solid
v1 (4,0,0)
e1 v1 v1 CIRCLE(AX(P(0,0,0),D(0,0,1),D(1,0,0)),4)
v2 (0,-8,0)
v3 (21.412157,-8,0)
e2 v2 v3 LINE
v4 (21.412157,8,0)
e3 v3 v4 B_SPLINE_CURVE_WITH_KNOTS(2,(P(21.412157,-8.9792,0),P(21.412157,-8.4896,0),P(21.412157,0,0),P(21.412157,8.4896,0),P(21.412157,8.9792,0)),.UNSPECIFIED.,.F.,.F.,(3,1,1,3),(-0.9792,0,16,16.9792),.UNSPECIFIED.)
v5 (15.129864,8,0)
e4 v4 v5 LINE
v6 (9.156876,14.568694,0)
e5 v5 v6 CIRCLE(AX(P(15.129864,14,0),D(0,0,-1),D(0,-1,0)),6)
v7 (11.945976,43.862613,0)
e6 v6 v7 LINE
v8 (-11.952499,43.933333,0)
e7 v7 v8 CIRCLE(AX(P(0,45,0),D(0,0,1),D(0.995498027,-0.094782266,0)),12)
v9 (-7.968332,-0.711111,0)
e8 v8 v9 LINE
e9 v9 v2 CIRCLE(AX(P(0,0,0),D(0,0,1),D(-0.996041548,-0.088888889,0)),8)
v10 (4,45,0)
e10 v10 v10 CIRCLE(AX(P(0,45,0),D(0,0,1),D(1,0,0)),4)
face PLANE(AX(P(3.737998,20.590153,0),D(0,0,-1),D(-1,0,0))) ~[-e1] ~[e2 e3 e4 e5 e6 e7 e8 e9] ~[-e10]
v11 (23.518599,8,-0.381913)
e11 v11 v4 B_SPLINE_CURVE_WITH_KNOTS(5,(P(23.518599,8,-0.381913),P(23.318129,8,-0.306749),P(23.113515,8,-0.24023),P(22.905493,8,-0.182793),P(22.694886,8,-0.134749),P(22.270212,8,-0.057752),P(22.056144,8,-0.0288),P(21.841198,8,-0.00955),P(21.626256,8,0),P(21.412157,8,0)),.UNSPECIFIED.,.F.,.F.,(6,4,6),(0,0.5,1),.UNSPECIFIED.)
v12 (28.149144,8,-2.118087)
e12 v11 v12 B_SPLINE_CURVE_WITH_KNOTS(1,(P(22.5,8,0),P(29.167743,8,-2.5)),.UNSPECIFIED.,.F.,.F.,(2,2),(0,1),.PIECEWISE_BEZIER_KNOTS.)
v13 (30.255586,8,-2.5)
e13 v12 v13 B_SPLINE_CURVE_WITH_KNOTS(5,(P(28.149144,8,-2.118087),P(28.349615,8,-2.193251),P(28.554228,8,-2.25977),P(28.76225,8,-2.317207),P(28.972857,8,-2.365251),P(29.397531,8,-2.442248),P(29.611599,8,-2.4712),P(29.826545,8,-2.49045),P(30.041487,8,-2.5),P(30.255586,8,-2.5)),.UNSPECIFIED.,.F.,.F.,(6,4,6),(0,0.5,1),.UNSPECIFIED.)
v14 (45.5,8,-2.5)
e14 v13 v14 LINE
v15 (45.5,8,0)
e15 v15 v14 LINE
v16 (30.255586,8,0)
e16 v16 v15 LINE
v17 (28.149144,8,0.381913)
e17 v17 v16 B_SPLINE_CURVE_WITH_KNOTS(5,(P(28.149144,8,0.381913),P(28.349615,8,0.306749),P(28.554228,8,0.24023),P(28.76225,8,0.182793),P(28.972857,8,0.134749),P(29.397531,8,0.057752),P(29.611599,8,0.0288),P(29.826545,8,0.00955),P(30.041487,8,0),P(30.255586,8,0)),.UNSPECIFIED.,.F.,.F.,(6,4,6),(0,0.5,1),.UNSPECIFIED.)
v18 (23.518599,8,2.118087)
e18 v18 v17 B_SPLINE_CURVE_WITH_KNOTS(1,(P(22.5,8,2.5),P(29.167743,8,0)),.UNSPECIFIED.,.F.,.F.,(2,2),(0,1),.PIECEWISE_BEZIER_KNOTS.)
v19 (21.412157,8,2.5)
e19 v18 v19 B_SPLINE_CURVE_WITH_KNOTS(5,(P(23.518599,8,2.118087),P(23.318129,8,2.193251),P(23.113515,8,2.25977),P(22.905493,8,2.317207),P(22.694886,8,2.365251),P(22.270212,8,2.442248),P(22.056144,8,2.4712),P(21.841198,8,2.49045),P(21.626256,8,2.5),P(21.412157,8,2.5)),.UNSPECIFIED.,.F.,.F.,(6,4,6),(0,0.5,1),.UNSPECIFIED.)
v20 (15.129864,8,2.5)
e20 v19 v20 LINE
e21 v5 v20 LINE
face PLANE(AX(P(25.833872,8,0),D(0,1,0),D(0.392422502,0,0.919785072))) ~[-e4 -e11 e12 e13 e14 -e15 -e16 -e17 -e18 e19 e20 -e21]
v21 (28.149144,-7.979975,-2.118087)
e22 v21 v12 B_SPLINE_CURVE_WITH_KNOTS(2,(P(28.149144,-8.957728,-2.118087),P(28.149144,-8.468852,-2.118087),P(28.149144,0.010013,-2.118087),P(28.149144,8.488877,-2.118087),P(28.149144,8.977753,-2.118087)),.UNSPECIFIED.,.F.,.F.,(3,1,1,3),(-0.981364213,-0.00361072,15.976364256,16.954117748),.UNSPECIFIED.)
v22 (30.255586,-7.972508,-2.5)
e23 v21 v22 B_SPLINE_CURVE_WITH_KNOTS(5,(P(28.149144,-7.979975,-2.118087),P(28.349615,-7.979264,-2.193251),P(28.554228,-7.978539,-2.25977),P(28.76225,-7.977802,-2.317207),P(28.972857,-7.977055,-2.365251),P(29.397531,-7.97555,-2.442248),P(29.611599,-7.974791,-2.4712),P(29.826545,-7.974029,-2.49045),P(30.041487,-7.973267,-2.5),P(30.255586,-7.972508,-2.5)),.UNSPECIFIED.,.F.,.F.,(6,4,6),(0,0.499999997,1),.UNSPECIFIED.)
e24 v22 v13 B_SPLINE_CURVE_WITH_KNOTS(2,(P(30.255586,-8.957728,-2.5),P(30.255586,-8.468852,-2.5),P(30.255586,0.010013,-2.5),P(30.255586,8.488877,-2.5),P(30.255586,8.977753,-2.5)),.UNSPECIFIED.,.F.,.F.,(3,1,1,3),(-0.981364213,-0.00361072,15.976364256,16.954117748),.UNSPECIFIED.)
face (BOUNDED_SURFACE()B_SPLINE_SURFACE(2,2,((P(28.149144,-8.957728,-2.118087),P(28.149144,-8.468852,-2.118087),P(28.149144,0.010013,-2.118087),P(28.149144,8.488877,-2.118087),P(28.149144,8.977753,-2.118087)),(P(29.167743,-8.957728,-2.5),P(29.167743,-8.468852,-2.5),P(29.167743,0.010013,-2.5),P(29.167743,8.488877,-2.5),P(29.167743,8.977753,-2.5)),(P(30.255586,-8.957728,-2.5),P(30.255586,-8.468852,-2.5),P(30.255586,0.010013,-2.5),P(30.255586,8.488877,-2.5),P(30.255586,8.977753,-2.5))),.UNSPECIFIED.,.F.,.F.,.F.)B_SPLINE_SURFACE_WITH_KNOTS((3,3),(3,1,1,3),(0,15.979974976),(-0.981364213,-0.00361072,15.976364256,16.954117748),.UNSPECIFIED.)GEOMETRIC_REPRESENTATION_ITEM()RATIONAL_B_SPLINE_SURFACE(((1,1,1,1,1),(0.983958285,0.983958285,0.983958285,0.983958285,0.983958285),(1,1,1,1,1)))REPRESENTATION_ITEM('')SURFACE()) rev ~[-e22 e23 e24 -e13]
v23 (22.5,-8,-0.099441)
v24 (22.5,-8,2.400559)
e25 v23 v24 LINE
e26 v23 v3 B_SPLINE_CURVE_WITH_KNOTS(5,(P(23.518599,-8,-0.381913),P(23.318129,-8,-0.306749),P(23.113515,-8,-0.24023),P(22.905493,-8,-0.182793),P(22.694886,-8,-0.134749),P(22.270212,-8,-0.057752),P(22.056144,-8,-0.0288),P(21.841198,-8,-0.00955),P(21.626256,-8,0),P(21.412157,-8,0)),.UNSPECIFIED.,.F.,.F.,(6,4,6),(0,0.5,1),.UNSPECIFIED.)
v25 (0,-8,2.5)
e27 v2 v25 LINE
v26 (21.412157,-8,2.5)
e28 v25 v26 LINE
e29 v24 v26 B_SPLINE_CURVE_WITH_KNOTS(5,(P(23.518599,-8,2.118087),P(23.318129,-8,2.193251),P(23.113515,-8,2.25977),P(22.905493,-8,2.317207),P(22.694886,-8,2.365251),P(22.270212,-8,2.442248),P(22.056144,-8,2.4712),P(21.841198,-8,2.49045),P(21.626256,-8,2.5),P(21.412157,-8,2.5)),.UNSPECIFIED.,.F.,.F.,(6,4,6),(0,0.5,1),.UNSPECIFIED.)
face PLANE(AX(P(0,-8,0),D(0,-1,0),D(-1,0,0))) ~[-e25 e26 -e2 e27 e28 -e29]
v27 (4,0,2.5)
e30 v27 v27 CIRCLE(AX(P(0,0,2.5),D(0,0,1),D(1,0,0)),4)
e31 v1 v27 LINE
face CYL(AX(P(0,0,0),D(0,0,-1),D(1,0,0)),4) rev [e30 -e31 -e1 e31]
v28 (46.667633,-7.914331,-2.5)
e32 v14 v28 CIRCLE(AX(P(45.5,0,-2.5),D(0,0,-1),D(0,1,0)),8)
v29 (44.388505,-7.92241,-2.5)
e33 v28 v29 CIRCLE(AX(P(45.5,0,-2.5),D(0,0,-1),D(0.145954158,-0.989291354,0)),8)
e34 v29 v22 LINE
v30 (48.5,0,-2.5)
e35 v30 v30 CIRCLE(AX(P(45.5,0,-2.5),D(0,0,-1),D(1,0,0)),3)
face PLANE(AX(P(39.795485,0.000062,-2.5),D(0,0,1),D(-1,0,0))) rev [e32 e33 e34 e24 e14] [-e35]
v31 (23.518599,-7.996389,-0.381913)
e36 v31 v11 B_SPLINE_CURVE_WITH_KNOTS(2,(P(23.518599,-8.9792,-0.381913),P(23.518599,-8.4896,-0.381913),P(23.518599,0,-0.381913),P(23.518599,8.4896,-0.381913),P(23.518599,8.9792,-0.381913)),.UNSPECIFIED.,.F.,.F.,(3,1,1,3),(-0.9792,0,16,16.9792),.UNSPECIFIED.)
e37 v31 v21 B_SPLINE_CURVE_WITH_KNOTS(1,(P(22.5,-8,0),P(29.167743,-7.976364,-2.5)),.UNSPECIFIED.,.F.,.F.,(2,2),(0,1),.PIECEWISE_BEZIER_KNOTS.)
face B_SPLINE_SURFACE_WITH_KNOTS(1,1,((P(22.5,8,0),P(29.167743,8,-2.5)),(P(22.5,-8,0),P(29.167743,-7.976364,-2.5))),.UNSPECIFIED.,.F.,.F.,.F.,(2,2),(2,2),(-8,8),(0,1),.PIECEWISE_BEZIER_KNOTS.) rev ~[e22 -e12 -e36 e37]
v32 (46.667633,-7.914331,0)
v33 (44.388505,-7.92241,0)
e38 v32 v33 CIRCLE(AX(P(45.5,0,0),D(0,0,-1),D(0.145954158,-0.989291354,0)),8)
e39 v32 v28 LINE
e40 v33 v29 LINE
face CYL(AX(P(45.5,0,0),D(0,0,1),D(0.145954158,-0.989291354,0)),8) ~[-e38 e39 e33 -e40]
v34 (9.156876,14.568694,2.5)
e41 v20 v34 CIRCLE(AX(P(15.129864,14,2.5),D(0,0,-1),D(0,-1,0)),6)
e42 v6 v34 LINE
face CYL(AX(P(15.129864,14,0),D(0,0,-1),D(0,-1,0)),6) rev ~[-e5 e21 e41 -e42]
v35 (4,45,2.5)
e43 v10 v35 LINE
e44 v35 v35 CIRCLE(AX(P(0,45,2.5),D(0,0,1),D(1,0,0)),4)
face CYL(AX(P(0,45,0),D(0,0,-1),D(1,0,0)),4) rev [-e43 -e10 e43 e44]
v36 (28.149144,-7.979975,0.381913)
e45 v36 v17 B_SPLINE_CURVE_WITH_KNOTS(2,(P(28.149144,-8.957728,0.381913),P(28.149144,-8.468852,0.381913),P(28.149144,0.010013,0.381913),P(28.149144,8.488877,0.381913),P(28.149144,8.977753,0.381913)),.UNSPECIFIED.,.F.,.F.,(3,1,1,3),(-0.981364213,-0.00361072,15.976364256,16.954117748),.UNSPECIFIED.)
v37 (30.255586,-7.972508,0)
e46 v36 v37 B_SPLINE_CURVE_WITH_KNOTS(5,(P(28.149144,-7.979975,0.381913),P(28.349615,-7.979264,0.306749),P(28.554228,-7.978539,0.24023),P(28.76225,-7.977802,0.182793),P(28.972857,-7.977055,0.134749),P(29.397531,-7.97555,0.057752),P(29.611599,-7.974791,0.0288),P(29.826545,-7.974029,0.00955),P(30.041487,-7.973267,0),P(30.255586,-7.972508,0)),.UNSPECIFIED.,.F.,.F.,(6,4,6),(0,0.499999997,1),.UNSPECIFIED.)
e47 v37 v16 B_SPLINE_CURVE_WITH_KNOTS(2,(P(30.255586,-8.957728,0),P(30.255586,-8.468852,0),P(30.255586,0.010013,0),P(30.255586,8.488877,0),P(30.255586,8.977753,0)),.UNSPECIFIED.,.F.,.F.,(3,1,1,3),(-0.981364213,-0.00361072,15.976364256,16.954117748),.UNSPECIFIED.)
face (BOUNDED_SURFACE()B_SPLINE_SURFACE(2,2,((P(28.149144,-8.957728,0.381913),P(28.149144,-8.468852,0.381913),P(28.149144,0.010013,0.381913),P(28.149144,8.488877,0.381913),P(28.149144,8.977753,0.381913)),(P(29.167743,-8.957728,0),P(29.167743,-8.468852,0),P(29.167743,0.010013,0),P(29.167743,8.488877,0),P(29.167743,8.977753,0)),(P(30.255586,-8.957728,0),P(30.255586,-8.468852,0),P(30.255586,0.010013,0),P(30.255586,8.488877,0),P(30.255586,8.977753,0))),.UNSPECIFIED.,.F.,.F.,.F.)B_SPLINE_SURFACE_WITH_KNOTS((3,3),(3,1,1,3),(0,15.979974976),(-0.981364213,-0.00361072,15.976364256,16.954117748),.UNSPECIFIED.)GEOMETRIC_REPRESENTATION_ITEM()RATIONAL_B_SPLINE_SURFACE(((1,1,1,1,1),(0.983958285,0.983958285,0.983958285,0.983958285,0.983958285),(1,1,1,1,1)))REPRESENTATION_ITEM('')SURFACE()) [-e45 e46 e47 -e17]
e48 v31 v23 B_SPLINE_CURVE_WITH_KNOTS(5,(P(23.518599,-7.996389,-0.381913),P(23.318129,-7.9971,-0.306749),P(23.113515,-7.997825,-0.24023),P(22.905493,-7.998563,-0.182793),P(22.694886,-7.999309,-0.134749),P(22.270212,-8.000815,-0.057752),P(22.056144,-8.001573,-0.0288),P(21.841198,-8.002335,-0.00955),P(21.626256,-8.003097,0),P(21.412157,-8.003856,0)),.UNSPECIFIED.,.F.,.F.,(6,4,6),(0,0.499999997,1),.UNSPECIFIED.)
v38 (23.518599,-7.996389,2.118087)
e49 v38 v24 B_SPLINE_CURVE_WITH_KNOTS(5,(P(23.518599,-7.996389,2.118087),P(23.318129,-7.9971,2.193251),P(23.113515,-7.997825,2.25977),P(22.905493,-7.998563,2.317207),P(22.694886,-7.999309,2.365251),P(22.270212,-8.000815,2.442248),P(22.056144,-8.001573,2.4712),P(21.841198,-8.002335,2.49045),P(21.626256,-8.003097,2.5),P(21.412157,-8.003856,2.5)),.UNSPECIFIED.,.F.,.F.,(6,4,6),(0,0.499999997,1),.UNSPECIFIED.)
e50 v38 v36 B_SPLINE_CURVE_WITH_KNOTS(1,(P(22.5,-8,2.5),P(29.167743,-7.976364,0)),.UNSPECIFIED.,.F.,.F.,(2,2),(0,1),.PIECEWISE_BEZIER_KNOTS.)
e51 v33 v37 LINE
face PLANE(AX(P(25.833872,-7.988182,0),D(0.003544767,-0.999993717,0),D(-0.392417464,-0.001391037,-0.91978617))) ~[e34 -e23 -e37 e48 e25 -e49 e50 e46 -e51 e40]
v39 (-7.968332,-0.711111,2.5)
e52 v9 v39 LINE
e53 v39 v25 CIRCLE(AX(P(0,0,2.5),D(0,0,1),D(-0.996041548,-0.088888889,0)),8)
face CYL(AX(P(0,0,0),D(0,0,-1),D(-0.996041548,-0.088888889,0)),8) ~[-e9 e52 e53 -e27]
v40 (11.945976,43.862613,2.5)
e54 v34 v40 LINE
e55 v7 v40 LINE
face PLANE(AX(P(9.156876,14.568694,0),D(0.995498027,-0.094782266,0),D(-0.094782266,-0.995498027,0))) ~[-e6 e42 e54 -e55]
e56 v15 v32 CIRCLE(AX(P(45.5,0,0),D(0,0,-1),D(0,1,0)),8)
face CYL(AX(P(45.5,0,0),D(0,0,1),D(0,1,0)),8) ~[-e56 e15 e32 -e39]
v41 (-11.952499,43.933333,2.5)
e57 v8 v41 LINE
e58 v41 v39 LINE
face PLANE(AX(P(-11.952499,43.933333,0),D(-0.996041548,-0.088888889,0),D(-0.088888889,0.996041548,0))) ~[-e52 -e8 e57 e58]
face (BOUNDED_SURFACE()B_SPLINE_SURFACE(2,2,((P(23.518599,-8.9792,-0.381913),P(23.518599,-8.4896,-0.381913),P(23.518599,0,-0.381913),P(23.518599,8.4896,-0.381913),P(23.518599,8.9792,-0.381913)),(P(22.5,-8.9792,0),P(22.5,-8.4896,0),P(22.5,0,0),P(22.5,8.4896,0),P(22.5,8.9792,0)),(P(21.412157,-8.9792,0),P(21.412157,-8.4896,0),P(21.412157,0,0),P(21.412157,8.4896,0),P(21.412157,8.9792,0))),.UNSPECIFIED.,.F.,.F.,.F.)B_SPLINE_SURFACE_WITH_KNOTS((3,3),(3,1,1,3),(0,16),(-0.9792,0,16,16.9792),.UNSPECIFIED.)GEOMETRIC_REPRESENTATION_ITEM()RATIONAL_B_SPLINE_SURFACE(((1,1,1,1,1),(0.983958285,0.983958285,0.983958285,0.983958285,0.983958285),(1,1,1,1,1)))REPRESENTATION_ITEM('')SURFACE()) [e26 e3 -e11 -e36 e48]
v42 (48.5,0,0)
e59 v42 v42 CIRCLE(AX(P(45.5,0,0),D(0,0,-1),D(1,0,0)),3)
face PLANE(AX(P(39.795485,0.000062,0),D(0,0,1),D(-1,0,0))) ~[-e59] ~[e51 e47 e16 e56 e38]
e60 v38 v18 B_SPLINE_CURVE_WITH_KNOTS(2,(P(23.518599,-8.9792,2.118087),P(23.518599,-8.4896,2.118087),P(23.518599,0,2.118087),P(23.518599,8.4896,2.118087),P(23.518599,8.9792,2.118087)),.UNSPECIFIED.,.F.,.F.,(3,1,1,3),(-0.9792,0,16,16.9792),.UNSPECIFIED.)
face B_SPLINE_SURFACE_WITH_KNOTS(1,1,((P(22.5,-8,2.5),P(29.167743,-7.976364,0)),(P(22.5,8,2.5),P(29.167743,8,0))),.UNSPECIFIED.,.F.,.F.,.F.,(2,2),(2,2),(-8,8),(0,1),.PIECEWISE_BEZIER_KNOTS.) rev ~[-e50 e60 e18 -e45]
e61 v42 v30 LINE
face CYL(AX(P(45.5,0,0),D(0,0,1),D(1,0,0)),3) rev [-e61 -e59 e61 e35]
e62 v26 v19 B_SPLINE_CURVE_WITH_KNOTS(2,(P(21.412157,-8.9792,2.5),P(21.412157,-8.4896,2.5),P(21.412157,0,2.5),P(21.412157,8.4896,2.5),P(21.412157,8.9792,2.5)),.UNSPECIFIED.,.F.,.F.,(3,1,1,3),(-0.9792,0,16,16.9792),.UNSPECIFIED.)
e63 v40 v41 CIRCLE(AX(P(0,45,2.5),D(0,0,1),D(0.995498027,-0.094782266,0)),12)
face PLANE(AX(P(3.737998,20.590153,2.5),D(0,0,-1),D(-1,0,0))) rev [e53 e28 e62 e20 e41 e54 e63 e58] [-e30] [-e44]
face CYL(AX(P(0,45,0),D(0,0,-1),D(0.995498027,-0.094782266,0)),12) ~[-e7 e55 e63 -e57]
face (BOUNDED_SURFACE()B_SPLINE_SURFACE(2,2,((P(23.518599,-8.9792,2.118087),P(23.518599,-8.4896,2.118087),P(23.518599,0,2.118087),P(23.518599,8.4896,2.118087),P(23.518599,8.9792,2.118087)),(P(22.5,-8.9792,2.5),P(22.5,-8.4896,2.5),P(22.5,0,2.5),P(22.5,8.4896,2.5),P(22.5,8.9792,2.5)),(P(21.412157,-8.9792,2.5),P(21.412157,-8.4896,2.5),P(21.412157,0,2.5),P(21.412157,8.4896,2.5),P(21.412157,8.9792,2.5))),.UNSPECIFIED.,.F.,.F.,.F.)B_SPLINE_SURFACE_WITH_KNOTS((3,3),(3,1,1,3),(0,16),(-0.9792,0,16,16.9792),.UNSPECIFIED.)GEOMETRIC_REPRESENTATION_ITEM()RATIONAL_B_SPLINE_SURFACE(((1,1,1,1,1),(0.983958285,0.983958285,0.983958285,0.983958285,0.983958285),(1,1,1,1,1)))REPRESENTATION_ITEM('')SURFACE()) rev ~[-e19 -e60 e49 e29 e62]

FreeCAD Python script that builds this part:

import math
import FreeCAD as App
import Part
import Sketcher
from FreeCAD import Vector


def edges_at(feature, points):
    """Names of the edges that pass closest to the given points."""
    edges = feature.Shape.Edges
    near = lambda p: min(range(len(edges)), key=lambda i: edges[i].distToShape(Part.Vertex(*p))[0])
    return sorted({f"Edge{near(p) + 1}" for p in points})

doc = App.newDocument("Part")
body = doc.addObject("PartDesign::Body", "Body")

sketch1 = body.newObject("Sketcher::SketchObject", "Sketch")
sketch1.AttachmentSupport = (doc.getObject("XY_Plane"), [""])
sketch1.MapMode = "FlatFace"
sketch1.addGeometry(Part.LineSegment(Vector(9.2, 14.6, 0), Vector(11.9, 43.9, 0)), False)
sketch1.addGeometry(Part.ArcOfCircle(Part.Circle(Vector(0, 45, 0), Vector(0, 0, 1), 12), math.radians(-5), math.radians(185)), False)
sketch1.addGeometry(Part.LineSegment(Vector(-12, 43.9, 0), Vector(-8, -0.7, 0)), False)
sketch1.addGeometry(Part.ArcOfCircle(Part.Circle(Vector(0, 0, 0), Vector(0, 0, 1), 8), math.radians(-175), math.radians(-90)), False)
sketch1.addGeometry(Part.LineSegment(Vector(0, -8, 0), Vector(22.5, -8, 0)), False)
sketch1.addGeometry(Part.LineSegment(Vector(22.5, -8, 0), Vector(22.5, 8, 0)), False)
sketch1.addGeometry(Part.LineSegment(Vector(22.5, 8, 0), Vector(15.1, 8, 0)), False)
sketch1.addGeometry(Part.ArcOfCircle(Part.Circle(Vector(15.1, 14, 0), Vector(0, 0, 1), 6), math.radians(175), math.radians(270)), False)
sketch1.addGeometry(Part.Circle(Vector(0, 0, 0), Vector(0, 0, 1), 4), False)
sketch1.addGeometry(Part.Circle(Vector(0, 45, 0), Vector(0, 0, 1), 4), False)
sketch1.addConstraint(Sketcher.Constraint("Tangent", 0, 2, 1, 1))
sketch1.addConstraint(Sketcher.Constraint("Tangent", 1, 2, 2, 1))
sketch1.addConstraint(Sketcher.Constraint("Tangent", 2, 2, 3, 1))
sketch1.addConstraint(Sketcher.Constraint("Tangent", 3, 2, 4, 1))
sketch1.addConstraint(Sketcher.Constraint("Coincident", 4, 2, 5, 1))
sketch1.addConstraint(Sketcher.Constraint("Coincident", 5, 2, 6, 1))
sketch1.addConstraint(Sketcher.Constraint("Tangent", 6, 2, 7, 2))
sketch1.addConstraint(Sketcher.Constraint("Tangent", 7, 1, 0, 1))
sketch1.addConstraint(Sketcher.Constraint("Horizontal", 4))
sketch1.addConstraint(Sketcher.Constraint("Vertical", 5))
sketch1.addConstraint(Sketcher.Constraint("Horizontal", 6))
sketch1.addConstraint(Sketcher.Constraint("Coincident", 3, 3, -1, 1))
sketch1.addConstraint(Sketcher.Constraint("Coincident", 8, 3, -1, 1))
sketch1.addConstraint(Sketcher.Constraint("Coincident", 9, 3, 1, 3))
sketch1.addConstraint(Sketcher.Constraint("Equal", 8, 9))
sketch1.addConstraint(Sketcher.Constraint("PointOnObject", 1, 3, -2))
sketch1.addConstraint(Sketcher.Constraint("Diameter", 8, 8.0))
sketch1.addConstraint(Sketcher.Constraint("Radius", 1, 12.0))
sketch1.addConstraint(Sketcher.Constraint("Radius", 3, 8.0))
sketch1.addConstraint(Sketcher.Constraint("Radius", 7, 6.0))
sketch1.addConstraint(Sketcher.Constraint("DistanceY", 5, 1, 5, 2, 16.0))
sketch1.addConstraint(Sketcher.Constraint("DistanceX", 4, 1, 4, 2, 22.5))
sketch1.addConstraint(Sketcher.Constraint("DistanceY", -1, 1, 1, 3, 45.0))
sketch1.addConstraint(Sketcher.Constraint("DistanceX", 6, 2, 6, 1, 7.370136))
pad1 = body.newObject("PartDesign::Pad", "Pad")
pad1.Profile = sketch1
pad1.Length = 2.5
pad1.Reversed = True
body2 = doc.addObject("PartDesign::Body", "Body001")

sketch2 = body2.newObject("Sketcher::SketchObject", "Sketch001")
sketch2.AttachmentSupport = (doc.getObject("XY_Plane001"), [""])
sketch2.MapMode = "FlatFace"
sketch2.addGeometry(Part.LineSegment(Vector(29.2, 8, 0), Vector(45.5, 8, 0)), False)
sketch2.addGeometry(Part.ArcOfCircle(Part.Circle(Vector(45.5, 0, 0), Vector(0, 0, 1), 8), math.radians(-82), math.radians(90)), False)
sketch2.addGeometry(Part.ArcOfCircle(Part.Circle(Vector(45.5, 0, 0), Vector(0, 0, 1), 8), math.radians(-97.99), math.radians(-81.61)), False)
sketch2.addGeometry(Part.LineSegment(Vector(44.4, -7.9, 0), Vector(29.2, -8, 0)), False)
sketch2.addGeometry(Part.LineSegment(Vector(29.2, -8, 0), Vector(29.2, 8, 0)), False)
sketch2.addGeometry(Part.Circle(Vector(45.5, 0, 0), Vector(0, 0, 1), 3), False)
sketch2.addConstraint(Sketcher.Constraint("Tangent", 0, 2, 1, 2))
sketch2.addConstraint(Sketcher.Constraint("Tangent", 1, 1, 2, 2))
sketch2.addConstraint(Sketcher.Constraint("Coincident", 2, 1, 3, 1))
sketch2.addConstraint(Sketcher.Constraint("Coincident", 3, 2, 4, 1))
sketch2.addConstraint(Sketcher.Constraint("Coincident", 4, 2, 0, 1))
sketch2.addConstraint(Sketcher.Constraint("Horizontal", 0))
sketch2.addConstraint(Sketcher.Constraint("Vertical", 4))
sketch2.addConstraint(Sketcher.Constraint("Coincident", 5, 3, 1, 3))
sketch2.addConstraint(Sketcher.Constraint("Equal", 1, 2))
sketch2.addConstraint(Sketcher.Constraint("PointOnObject", 1, 3, -1))
sketch2.addConstraint(Sketcher.Constraint("Diameter", 5, 6.0))
sketch2.addConstraint(Sketcher.Constraint("Radius", 1, 8.0))
sketch2.addConstraint(Sketcher.Constraint("DistanceX", -1, 1, 1, 3, 45.5))
sketch2.addConstraint(Sketcher.Constraint("DistanceX", 0, 1, 0, 2, 16.332257))
sketch2.addConstraint(Sketcher.Constraint("DistanceY", 4, 1, 4, 2, 15.976364))
sketch2.addConstraint(Sketcher.Constraint("DistanceY", 1, 1, -1, 1, 7.914331))
sketch2.addConstraint(Sketcher.Constraint("DistanceY", 2, 1, -1, 1, 7.92241))
pad2 = body2.newObject("PartDesign::Pad", "Pad001")
pad2.Profile = sketch2
pad2.Length = 2.5
body3 = doc.addObject("PartDesign::Body", "Body002")

sketch3 = body3.newObject("Sketcher::SketchObject", "Sketch002")
sketch3.AttachmentSupport = (doc.getObject("YZ_Plane002"), [""])
sketch3.MapMode = "FlatFace"
sketch3.AttachmentOffset = App.Placement(Vector(0, 0, 22.5), App.Rotation())
sketch3.addGeometry(Part.LineSegment(Vector(-8, 0, 0), Vector(-8, -2.5, 0)), False)
sketch3.addGeometry(Part.LineSegment(Vector(-8, -2.5, 0), Vector(8, -2.5, 0)), False)
sketch3.addGeometry(Part.LineSegment(Vector(8, -2.5, 0), Vector(8, 0, 0)), False)
sketch3.addGeometry(Part.LineSegment(Vector(8, 0, 0), Vector(-8, 0, 0)), False)
sketch3.addConstraint(Sketcher.Constraint("Coincident", 0, 2, 1, 1))
sketch3.addConstraint(Sketcher.Constraint("Coincident", 1, 2, 2, 1))
sketch3.addConstraint(Sketcher.Constraint("Coincident", 2, 2, 3, 1))
sketch3.addConstraint(Sketcher.Constraint("Coincident", 3, 2, 0, 1))
sketch3.addConstraint(Sketcher.Constraint("Vertical", 0))
sketch3.addConstraint(Sketcher.Constraint("Horizontal", 1))
sketch3.addConstraint(Sketcher.Constraint("Vertical", 2))
sketch3.addConstraint(Sketcher.Constraint("Horizontal", 3))
sketch3.addConstraint(Sketcher.Constraint("Symmetric", 2, 2, 3, 2, -1, 1))
sketch3.addConstraint(Sketcher.Constraint("DistanceX", 1, 1, 1, 2, 16.0))
sketch3.addConstraint(Sketcher.Constraint("DistanceY", 0, 2, 0, 1, 2.5))

sketch4 = body3.newObject("Sketcher::SketchObject", "Sketch003")
sketch4.AttachmentSupport = (doc.getObject("YZ_Plane002"), [""])
sketch4.MapMode = "FlatFace"
sketch4.AttachmentOffset = App.Placement(Vector(0, 0, 29.167743), App.Rotation())
sketch4.addGeometry(Part.LineSegment(Vector(8, 2.5, 0), Vector(8, 0, 0)), False)
sketch4.addGeometry(Part.LineSegment(Vector(8, 0, 0), Vector(-8, 0, 0)), False)
sketch4.addGeometry(Part.LineSegment(Vector(-8, 0, 0), Vector(-8, 2.5, 0)), False)
sketch4.addGeometry(Part.LineSegment(Vector(-8, 2.5, 0), Vector(8, 2.5, 0)), False)
sketch4.addConstraint(Sketcher.Constraint("Coincident", 0, 2, 1, 1))
sketch4.addConstraint(Sketcher.Constraint("Coincident", 1, 2, 2, 1))
sketch4.addConstraint(Sketcher.Constraint("Coincident", 2, 2, 3, 1))
sketch4.addConstraint(Sketcher.Constraint("Coincident", 3, 2, 0, 1))
sketch4.addConstraint(Sketcher.Constraint("Vertical", 0))
sketch4.addConstraint(Sketcher.Constraint("Horizontal", 1))
sketch4.addConstraint(Sketcher.Constraint("Vertical", 2))
sketch4.addConstraint(Sketcher.Constraint("Horizontal", 3))
sketch4.addConstraint(Sketcher.Constraint("PointOnObject", 0, 2, -1))
sketch4.addConstraint(Sketcher.Constraint("DistanceY", 0, 2, 0, 1, 2.5))
sketch4.addConstraint(Sketcher.Constraint("DistanceX", -1, 1, 0, 2, 8.0))
sketch4.addConstraint(Sketcher.Constraint("DistanceX", 1, 2, 1, 1, 15.976364))

additiveloft = body3.newObject("PartDesign::AdditiveLoft", "AdditiveLoft")
additiveloft.Profile = sketch3
additiveloft.Sections = [sketch4]
body.AllowCompound = True
doc.recompute()

boolean = body.newObject("PartDesign::Boolean", "Boolean")
boolean.Type = "Fuse"
boolean.addObjects([body2])
doc.recompute()

boolean2 = body.newObject("PartDesign::Boolean", "Boolean001")
boolean2.Type = "Fuse"
boolean2.addObjects([body3])
doc.recompute()

fillet = body.newObject("PartDesign::Fillet", "Fillet")
fillet.Base = (boolean2, edges_at(boolean2, [(22.5, 0, 0), (29.168, 0.012, 2.5)]))
fillet.Radius = 6
doc.recompute()

fillet2 = body.newObject("PartDesign::Fillet", "Fillet001")
fillet2.Base = (fillet, edges_at(fillet, [(29.168, 0.012, 0), (22.5, 0, -2.5)]))
fillet2.Radius = 6
body4 = doc.addObject("PartDesign::Body", "Body003")
doc.recompute()

mirroring = doc.addObject("Part::Mirroring", "Mirroring")
mirroring.Source = body
mirroring.Base = Vector(0, 0, 0)
mirroring.Normal = Vector(0, 0, 1)
body4.BaseFeature = mirroring
doc.recompute()
body.Visibility = False
mirroring.Visibility = False

doc.recompute()
